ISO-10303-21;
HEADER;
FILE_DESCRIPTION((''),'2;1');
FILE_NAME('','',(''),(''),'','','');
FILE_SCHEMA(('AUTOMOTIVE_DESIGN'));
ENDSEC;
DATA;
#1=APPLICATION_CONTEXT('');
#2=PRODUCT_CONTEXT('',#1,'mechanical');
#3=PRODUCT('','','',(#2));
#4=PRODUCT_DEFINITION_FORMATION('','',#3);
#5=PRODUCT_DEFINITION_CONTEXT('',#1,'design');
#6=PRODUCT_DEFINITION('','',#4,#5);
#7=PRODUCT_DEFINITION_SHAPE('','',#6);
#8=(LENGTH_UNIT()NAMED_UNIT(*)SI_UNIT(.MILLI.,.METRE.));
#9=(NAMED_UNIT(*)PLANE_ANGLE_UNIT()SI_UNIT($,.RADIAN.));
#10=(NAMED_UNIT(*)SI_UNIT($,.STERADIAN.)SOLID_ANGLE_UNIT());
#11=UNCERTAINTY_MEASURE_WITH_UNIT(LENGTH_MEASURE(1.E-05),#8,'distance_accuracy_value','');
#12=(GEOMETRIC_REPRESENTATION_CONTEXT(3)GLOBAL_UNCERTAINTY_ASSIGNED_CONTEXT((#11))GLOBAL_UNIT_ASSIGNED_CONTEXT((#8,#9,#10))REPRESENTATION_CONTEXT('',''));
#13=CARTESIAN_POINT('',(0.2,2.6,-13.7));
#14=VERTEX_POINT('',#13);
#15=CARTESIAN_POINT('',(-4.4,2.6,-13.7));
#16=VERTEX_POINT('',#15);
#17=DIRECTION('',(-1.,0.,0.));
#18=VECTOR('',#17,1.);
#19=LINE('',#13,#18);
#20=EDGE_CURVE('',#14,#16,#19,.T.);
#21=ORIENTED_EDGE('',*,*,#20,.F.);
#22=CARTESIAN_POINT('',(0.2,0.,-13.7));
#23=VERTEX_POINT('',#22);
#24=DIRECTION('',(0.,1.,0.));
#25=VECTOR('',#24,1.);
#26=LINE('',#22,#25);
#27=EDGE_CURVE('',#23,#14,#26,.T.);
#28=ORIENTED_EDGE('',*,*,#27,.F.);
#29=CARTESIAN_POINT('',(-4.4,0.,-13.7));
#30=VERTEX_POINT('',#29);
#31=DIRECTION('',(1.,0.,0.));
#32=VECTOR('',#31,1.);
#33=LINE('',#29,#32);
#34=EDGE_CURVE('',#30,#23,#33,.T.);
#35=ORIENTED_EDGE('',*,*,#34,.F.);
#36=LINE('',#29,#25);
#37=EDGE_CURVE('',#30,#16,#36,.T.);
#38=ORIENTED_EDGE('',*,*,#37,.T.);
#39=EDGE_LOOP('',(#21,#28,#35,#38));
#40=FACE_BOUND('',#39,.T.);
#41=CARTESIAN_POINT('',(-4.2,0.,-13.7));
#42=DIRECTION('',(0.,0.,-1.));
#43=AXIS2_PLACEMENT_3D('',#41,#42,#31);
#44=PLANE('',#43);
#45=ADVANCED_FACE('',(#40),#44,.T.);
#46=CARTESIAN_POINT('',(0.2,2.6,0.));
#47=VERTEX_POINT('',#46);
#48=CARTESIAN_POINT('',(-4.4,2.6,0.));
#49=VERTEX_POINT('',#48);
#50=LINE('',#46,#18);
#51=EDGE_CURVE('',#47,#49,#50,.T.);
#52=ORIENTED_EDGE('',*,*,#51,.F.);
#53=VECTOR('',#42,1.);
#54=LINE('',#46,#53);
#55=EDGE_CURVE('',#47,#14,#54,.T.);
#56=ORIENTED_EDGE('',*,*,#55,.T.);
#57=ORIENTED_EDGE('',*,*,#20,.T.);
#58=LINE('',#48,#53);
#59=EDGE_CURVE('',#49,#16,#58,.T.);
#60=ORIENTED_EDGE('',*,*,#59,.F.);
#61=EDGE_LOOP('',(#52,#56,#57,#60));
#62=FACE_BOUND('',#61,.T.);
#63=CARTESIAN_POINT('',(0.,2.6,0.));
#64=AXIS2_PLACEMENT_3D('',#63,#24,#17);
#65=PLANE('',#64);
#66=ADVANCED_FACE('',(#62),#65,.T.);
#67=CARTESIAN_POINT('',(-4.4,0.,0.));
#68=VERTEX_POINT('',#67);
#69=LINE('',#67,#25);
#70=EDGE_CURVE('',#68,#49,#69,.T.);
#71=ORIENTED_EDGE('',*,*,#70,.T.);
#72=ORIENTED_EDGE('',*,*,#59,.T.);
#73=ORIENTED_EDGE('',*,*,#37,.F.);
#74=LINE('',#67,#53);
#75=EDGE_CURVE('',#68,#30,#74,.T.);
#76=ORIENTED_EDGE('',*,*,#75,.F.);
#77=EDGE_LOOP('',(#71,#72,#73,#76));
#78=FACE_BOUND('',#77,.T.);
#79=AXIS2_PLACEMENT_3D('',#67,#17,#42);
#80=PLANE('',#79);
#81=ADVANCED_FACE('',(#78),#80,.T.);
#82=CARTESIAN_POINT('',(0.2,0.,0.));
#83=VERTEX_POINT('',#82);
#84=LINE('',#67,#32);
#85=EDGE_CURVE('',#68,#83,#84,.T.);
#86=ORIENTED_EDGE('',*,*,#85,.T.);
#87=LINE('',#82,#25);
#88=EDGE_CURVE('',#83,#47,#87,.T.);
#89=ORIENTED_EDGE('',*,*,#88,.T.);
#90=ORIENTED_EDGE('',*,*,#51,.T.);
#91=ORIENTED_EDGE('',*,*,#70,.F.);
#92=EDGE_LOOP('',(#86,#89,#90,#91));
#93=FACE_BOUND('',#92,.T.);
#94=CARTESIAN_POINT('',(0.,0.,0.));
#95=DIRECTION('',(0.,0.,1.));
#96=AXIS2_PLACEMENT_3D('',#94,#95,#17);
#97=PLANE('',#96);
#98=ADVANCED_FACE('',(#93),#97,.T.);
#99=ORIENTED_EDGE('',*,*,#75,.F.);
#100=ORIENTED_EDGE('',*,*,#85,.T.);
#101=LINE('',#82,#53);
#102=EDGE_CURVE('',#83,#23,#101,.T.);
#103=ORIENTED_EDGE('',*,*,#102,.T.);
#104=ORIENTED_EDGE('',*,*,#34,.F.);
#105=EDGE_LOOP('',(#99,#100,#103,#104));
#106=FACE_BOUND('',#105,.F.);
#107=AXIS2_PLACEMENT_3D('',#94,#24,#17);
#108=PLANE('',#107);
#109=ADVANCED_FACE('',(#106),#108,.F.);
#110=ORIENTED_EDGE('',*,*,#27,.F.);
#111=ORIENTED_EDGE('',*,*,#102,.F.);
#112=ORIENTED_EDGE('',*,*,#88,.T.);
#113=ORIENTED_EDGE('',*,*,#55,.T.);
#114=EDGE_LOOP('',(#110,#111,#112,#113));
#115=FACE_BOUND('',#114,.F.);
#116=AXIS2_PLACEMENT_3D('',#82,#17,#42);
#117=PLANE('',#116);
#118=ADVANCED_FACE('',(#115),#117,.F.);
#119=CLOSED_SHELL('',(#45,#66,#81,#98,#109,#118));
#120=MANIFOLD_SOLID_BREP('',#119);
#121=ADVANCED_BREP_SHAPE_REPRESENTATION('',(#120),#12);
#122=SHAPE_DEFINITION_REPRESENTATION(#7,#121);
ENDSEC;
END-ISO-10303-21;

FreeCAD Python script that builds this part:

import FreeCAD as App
import Part
import Sketcher

V = App.Vector


def add_polygon(sketch, points):
    """Adds a closed chain of lines whose ends are joined by coincident constraints."""
    first, n = sketch.GeometryCount, len(points)
    for a, b in zip(points, points[1:] + points[:1]):
        sketch.addGeometry(Part.LineSegment(App.Vector(*a, 0), App.Vector(*b, 0)), False)
    for i in range(n):
        sketch.addConstraint(Sketcher.Constraint("Coincident", first + i, 2, first + (i + 1) % n, 1))

doc = App.newDocument("Part")
body = doc.addObject("PartDesign::Body", "Body")

# Sketch on XZ plane
sketch1 = body.newObject("Sketcher::SketchObject", "Sketch")
sketch1.AttachmentSupport = (doc.getObject("XZ_Plane"), [""])
sketch1.MapMode = "FlatFace"
add_polygon(sketch1, [(0.2, 0), (0.2, -13.7), (-4.4, -13.7), (-4.4, 0)])  # lines 0-3
sketch1.addConstraint([
    Sketcher.Constraint("Vertical", 0),
    Sketcher.Constraint("Horizontal", 1),
    Sketcher.Constraint("Vertical", 2),
    Sketcher.Constraint("Horizontal", 3),
    Sketcher.Constraint("PointOnObject", 2, 2, -1),
    Sketcher.Constraint("DistanceX", 1, 2, 1, 1, 4.6),
    Sketcher.Constraint("DistanceY", 0, 2, 0, 1, 13.7),
    Sketcher.Constraint("DistanceX", -1, 1, 0, 2, 0.2),
])
pad1 = body.newObject("PartDesign::Pad", "Pad")
pad1.Profile = sketch1
pad1.Length = 2.6
pad1.Reversed = True

doc.recompute()
